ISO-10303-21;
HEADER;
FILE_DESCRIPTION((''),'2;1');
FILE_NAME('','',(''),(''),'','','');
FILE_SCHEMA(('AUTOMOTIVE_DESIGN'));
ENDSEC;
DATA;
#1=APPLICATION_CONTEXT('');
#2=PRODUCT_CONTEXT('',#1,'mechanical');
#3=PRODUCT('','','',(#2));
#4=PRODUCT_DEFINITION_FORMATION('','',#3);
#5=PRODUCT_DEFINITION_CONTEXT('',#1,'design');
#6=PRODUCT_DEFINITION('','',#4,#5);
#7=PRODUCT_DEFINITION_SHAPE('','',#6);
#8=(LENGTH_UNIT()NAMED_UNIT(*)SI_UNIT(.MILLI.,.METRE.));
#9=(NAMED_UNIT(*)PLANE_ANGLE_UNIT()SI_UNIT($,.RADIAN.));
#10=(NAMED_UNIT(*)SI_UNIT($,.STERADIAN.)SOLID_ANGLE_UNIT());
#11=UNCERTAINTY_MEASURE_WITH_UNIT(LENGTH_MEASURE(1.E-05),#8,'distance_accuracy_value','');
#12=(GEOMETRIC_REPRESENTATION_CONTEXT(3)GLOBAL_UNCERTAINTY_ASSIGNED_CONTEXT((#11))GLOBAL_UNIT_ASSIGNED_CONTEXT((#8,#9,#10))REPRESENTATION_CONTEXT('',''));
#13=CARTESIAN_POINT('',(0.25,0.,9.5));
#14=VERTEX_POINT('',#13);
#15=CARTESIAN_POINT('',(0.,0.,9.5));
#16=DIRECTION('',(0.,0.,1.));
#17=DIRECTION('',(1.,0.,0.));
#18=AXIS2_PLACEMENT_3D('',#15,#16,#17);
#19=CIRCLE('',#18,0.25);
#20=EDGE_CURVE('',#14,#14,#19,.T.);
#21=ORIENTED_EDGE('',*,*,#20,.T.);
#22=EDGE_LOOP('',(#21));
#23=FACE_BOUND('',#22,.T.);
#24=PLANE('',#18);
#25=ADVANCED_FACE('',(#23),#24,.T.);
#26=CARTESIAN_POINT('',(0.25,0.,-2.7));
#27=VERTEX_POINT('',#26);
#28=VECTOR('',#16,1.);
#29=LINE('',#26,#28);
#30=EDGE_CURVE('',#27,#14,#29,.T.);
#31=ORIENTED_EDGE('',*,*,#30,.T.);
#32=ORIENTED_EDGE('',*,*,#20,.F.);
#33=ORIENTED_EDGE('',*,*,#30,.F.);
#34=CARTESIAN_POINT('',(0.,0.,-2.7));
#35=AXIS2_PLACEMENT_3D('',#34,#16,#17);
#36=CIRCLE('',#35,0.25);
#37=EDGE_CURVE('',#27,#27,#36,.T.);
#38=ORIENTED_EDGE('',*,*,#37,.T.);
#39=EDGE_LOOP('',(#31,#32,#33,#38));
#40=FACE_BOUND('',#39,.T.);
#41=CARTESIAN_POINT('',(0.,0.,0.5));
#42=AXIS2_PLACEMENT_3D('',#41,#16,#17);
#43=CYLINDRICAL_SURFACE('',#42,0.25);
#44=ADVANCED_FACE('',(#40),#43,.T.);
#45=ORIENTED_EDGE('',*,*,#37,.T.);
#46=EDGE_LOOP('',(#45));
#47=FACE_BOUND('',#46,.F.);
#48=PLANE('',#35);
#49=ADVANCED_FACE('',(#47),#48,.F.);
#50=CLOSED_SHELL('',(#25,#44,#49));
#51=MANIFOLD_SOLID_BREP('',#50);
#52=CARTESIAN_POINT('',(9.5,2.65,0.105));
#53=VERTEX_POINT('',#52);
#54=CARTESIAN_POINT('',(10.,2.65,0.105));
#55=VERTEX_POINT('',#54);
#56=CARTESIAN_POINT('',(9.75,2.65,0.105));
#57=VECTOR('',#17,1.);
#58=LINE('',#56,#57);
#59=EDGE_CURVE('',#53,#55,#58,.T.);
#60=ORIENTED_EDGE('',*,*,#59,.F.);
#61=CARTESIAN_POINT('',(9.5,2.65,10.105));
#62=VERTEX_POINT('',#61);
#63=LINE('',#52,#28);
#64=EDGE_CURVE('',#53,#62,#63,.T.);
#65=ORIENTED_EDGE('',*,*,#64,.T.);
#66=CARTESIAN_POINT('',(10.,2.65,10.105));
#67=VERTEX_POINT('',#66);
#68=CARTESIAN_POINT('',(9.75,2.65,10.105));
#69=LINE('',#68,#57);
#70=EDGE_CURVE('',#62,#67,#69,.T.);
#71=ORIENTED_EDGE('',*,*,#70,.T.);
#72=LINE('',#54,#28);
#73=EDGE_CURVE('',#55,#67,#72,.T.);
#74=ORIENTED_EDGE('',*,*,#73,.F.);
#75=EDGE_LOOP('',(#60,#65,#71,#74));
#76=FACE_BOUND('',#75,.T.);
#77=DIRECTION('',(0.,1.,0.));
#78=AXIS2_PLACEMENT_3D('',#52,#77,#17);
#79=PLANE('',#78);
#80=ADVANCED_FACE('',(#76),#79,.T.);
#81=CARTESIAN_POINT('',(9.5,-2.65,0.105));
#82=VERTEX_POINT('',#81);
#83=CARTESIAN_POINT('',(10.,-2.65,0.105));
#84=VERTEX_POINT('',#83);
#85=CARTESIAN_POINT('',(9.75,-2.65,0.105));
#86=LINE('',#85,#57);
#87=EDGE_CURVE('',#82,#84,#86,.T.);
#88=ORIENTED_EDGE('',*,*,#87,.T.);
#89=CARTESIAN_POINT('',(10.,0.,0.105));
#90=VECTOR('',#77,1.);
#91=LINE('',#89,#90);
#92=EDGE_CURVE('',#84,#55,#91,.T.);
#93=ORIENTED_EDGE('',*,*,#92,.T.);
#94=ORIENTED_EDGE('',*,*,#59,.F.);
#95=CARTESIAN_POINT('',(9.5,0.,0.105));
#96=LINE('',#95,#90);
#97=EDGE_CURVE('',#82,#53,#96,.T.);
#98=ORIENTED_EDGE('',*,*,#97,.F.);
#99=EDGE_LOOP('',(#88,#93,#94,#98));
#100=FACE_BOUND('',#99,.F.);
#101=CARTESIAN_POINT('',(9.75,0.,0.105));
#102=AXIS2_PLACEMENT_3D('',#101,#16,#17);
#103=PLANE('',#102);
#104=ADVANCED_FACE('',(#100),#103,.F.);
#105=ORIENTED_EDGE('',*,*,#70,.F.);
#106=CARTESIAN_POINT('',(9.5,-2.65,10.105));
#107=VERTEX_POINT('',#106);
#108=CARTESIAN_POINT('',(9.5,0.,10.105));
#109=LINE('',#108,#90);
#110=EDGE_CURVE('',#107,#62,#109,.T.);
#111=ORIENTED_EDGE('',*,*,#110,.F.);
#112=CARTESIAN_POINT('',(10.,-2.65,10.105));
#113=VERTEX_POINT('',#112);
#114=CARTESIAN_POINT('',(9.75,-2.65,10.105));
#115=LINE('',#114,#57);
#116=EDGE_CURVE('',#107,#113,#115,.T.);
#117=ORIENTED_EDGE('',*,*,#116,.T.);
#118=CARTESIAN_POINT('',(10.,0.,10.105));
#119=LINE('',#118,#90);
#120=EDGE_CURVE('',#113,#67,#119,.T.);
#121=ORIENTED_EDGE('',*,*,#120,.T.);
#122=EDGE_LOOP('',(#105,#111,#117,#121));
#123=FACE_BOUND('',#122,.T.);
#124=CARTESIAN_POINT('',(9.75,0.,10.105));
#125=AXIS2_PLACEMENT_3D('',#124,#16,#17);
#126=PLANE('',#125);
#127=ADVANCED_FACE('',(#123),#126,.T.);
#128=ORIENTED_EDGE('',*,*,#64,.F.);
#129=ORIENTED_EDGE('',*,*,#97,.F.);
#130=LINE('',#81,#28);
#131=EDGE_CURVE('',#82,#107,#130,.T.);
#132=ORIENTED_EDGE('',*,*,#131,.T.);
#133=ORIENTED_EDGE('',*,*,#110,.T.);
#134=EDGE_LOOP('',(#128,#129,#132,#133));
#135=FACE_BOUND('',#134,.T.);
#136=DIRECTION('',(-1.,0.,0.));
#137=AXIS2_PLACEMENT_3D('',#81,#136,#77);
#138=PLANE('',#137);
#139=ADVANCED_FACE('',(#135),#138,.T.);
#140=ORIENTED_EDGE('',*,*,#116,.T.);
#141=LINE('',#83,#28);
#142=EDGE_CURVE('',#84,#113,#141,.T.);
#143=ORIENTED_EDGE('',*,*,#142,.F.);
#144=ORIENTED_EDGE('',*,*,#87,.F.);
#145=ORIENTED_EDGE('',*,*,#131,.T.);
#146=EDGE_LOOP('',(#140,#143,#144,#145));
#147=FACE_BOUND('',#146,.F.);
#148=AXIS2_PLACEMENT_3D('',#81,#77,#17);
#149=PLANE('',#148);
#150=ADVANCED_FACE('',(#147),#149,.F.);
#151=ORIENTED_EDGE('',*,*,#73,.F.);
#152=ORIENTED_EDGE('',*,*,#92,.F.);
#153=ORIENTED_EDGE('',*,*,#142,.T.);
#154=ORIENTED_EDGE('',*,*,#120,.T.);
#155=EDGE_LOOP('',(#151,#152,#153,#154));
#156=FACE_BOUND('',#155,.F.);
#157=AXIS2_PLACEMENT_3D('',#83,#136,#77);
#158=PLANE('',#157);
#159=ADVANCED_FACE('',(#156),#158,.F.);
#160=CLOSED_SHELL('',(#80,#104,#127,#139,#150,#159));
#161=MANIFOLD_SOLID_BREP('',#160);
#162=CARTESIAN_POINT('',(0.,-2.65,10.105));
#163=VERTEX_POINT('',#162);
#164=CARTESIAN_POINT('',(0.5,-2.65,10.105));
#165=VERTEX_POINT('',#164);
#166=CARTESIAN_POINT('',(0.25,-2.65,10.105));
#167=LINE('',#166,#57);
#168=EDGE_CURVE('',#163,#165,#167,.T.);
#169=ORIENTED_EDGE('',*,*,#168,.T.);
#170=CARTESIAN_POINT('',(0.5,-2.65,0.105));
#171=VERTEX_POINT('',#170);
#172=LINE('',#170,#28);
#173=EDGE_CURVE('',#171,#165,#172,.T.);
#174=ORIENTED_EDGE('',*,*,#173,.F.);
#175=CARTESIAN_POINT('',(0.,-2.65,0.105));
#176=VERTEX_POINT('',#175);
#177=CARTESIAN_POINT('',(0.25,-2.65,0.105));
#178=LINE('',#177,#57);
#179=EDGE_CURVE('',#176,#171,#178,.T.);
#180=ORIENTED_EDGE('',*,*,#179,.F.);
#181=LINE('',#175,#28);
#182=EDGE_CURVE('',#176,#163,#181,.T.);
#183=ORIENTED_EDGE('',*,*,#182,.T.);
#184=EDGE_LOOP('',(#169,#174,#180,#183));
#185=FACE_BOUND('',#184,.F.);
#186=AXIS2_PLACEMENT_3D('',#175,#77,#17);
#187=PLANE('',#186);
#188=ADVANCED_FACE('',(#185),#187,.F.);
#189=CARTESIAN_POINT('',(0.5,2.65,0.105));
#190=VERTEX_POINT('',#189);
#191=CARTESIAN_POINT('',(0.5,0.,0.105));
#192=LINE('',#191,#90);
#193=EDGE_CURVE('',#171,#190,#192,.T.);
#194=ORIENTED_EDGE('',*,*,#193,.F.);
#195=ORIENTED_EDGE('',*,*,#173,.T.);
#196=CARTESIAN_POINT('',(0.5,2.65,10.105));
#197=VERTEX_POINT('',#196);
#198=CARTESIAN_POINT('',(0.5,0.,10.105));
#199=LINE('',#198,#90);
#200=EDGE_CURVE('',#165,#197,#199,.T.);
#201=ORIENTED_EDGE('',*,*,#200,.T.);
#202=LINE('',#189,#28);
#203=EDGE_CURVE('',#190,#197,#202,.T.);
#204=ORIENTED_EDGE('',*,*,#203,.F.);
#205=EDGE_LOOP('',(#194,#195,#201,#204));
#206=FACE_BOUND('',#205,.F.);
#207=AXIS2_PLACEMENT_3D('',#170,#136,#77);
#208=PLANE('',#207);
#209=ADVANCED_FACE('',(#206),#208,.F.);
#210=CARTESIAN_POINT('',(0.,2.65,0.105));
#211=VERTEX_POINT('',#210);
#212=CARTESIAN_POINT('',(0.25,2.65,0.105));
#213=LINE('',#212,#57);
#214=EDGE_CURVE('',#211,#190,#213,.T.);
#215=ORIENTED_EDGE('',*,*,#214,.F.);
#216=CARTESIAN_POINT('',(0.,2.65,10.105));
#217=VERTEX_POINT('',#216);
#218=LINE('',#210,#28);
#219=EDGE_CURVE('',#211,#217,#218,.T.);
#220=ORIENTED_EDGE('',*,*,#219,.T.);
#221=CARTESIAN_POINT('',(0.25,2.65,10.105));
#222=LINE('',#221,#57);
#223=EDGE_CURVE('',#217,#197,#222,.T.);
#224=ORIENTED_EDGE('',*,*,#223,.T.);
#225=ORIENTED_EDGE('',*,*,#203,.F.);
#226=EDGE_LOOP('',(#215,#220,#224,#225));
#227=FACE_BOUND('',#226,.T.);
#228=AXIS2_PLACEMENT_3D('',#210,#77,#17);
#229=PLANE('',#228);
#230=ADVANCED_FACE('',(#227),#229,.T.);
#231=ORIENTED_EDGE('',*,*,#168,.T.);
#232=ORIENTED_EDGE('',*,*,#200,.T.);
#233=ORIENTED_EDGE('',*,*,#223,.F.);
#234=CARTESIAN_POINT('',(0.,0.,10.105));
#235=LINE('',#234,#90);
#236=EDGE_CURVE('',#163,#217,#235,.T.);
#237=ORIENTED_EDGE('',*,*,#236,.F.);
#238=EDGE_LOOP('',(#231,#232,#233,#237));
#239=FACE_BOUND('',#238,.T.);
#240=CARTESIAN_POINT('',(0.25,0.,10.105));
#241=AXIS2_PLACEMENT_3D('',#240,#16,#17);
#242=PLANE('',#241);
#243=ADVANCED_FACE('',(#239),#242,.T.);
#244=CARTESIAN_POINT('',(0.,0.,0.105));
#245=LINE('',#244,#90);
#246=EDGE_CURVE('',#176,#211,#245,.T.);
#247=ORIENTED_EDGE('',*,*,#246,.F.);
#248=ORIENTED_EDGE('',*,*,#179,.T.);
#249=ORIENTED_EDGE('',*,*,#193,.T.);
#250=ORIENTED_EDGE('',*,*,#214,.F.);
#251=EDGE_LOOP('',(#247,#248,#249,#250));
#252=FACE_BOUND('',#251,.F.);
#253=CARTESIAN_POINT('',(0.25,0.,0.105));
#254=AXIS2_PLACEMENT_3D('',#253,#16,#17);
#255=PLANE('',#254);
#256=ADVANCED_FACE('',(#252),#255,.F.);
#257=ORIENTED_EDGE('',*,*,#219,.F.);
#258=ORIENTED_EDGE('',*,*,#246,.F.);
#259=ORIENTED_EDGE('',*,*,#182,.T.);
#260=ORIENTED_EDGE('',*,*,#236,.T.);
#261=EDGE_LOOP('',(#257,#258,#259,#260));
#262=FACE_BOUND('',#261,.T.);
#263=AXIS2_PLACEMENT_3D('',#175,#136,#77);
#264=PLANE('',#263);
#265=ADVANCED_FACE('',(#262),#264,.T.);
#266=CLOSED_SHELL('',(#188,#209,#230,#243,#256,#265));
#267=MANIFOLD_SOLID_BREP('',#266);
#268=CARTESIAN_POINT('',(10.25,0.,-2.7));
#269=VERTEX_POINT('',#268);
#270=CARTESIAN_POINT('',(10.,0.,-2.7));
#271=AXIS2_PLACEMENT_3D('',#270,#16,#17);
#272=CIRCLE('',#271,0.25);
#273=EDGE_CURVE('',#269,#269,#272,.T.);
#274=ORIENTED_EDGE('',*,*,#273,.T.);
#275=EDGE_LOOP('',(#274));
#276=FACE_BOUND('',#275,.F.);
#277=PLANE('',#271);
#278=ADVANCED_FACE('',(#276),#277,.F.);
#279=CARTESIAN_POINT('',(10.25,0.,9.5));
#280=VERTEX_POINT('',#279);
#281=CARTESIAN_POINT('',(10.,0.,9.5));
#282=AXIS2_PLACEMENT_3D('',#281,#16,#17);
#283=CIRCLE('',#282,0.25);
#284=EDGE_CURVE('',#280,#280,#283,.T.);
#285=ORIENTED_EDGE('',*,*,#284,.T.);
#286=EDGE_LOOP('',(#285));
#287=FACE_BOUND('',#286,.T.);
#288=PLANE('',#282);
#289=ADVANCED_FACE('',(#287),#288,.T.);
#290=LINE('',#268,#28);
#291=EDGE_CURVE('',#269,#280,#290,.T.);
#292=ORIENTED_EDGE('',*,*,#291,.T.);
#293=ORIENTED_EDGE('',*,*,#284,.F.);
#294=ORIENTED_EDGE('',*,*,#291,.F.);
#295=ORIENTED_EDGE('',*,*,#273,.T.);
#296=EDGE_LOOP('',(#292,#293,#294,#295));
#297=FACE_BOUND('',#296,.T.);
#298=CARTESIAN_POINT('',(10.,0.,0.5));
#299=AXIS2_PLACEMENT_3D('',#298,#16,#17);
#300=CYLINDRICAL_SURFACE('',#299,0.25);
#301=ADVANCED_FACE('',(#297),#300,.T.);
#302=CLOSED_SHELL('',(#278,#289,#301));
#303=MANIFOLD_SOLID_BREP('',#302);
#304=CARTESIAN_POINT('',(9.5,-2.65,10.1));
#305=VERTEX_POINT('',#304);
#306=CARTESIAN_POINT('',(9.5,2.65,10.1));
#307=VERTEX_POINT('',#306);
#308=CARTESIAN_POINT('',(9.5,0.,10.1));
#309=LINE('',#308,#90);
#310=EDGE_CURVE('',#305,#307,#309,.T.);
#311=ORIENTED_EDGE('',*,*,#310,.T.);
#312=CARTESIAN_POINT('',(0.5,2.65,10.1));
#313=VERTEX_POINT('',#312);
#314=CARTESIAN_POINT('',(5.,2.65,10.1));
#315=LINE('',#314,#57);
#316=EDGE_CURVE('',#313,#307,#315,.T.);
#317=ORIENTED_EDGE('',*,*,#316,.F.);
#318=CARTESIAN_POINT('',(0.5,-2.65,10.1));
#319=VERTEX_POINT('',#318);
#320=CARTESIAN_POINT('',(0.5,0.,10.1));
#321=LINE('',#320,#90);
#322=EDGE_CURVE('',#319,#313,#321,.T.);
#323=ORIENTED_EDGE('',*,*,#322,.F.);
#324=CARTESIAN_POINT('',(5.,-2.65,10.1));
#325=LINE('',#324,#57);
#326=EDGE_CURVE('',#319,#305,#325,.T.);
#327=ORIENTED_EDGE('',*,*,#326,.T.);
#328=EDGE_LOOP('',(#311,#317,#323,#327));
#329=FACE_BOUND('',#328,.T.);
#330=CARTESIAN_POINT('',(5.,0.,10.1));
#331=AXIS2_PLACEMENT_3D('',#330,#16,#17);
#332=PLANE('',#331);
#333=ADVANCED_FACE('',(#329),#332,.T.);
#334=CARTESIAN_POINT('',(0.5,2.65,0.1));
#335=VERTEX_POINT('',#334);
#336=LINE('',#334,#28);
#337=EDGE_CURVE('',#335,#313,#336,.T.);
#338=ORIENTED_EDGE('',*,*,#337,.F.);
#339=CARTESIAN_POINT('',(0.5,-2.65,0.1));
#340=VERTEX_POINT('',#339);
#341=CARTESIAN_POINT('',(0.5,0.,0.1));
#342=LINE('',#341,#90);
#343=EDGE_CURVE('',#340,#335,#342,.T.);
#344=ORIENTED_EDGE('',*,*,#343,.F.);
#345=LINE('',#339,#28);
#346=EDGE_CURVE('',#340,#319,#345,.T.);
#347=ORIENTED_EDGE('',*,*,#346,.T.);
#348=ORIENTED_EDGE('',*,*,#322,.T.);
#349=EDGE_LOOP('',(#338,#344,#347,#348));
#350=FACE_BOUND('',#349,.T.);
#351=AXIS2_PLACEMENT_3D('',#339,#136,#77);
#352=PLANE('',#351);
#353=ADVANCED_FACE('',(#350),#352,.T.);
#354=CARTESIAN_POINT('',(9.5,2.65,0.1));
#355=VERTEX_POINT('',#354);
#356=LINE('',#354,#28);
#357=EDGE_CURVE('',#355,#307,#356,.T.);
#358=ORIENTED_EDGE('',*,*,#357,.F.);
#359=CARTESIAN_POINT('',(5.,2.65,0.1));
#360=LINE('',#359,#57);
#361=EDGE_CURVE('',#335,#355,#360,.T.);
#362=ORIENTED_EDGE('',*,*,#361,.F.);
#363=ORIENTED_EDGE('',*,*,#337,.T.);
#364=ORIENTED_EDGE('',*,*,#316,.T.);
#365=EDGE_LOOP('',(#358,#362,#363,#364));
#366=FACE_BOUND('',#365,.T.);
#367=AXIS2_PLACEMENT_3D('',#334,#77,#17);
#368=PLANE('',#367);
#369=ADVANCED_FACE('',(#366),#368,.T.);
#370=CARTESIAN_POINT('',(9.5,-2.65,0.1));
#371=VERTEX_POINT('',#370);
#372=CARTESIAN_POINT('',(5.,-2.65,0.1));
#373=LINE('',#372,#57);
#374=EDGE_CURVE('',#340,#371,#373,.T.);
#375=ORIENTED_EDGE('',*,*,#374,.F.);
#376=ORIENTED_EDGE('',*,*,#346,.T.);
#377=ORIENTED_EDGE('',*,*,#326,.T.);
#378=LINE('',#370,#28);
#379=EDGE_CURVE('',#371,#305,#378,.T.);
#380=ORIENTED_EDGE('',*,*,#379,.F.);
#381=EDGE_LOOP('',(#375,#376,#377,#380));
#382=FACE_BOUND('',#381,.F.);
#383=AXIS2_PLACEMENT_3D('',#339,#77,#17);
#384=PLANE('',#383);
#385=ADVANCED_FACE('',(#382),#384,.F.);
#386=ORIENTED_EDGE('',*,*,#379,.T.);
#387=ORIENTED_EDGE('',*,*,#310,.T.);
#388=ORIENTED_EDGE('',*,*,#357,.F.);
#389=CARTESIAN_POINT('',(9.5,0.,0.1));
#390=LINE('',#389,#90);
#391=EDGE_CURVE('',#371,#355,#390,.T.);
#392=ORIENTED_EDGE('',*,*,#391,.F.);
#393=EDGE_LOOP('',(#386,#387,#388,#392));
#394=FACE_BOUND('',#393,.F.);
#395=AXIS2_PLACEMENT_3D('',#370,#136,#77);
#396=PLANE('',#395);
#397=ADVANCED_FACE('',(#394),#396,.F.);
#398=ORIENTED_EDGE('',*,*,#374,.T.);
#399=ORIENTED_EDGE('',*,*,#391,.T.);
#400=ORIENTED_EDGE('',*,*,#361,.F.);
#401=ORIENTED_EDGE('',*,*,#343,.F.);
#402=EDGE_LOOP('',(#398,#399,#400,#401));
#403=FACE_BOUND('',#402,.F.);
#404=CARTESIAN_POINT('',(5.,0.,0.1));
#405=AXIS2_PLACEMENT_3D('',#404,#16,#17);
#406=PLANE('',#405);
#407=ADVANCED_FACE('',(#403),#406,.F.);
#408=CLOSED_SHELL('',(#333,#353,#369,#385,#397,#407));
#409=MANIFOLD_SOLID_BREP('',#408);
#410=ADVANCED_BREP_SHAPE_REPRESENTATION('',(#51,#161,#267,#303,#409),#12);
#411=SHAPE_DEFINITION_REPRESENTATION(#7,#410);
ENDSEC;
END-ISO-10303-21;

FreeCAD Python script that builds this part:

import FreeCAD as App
import Part
import Sketcher

V = App.Vector

doc = App.newDocument("Part")
body = doc.addObject("PartDesign::Body", "Body")

# Sketch on XY plane
sketch1 = doc.addObject("Sketcher::SketchObject", "Sketch")
body.addObject(sketch1)
sketch1.AttachmentSupport = (doc.XY_Plane, [""])
sketch1.MapMode = "FlatFace"
sketch1.AttachmentOffset = App.Placement(V(0, 0, 0.1), App.Rotation())
sketch1.addGeometry([
    Part.LineSegment(V(0, 3, 0), V(0, -3, 0)),
    Part.LineSegment(V(0, -3, 0), V(10, -3, 0)),
    Part.LineSegment(V(10, -3, 0), V(10, 3, 0)),
    Part.LineSegment(V(10, 3, 0), V(0, 3, 0)),
], False)
sketch1.addConstraint([
    Sketcher.Constraint("Coincident", 0, 2, 1, 1),
    Sketcher.Constraint("Coincident", 1, 2, 2, 1),
    Sketcher.Constraint("Coincident", 2, 2, 3, 1),
    Sketcher.Constraint("Coincident", 3, 2, 0, 1),
    Sketcher.Constraint("Vertical", 0),
    Sketcher.Constraint("Horizontal", 1),
    Sketcher.Constraint("Vertical", 2),
    Sketcher.Constraint("Horizontal", 3),
    Sketcher.Constraint("DistanceX", 1, 1, 1, 2, 9.0),
    Sketcher.Constraint("DistanceY", 0, 2, 0, 1, 5.3),
    Sketcher.Constraint("DistanceX", -1, 1, 0, 2, 0.5),
    Sketcher.Constraint("DistanceY", 0, 2, -1, 1, 2.65),
])
pad1 = doc.addObject("PartDesign::Pad", "Pad")
body.addObject(pad1)
pad1.Profile = sketch1
pad1.Length = 10
body2 = doc.addObject("PartDesign::Body", "Body001")
body2.AllowCompound = True

# Sketch on XY plane
sketch2 = doc.addObject("Sketcher::SketchObject", "Sketch001")
body2.addObject(sketch2)
sketch2.AttachmentSupport = (doc.getObject("XY_Plane001"), [""])
sketch2.MapMode = "FlatFace"
sketch2.AttachmentOffset = App.Placement(V(0, 0, 0.5), App.Rotation())
sketch2.addGeometry([
    Part.Circle(V(0, 0, 0), V(0, 0, 1), 0.25),
    Part.Circle(V(10, 0, 0), V(0, 0, 1), 0.25),
], False)
sketch2.addConstraint([
    Sketcher.Constraint("Coincident", 0, 3, -1, 1),
    Sketcher.Constraint("Equal", 0, 1),
    Sketcher.Constraint("PointOnObject", 1, 3, -1),
    Sketcher.Constraint("Diameter", 0, 0.5),
    Sketcher.Constraint("DistanceX", -1, 1, 1, 3, 10.0),
])
pad2 = doc.addObject("PartDesign::Pad", "Pad001")
body2.addObject(pad2)
pad2.Profile = sketch2
pad2.Type = "TwoLengths"
pad2.Length = 9
pad2.Length2 = 3.2
body3 = doc.addObject("PartDesign::Body", "Body002")
body3.AllowCompound = True

# Sketch on XY plane
sketch3 = doc.addObject("Sketcher::SketchObject", "Sketch002")
body3.addObject(sketch3)
sketch3.AttachmentSupport = (doc.getObject("XY_Plane002"), [""])
sketch3.MapMode = "FlatFace"
sketch3.AttachmentOffset = App.Placement(V(0, 0, 0.105), App.Rotation())
sketch3.addGeometry([
    Part.LineSegment(V(0, 2.6, 0), V(0, -2.6, 0)),  # 0
    Part.LineSegment(V(0, -2.6, 0), V(0.5, -2.6, 0)),  # 1
    Part.LineSegment(V(0.5, -2.6, 0), V(0.5, 2.6, 0)),  # 2
    Part.LineSegment(V(0.5, 2.6, 0), V(0, 2.6, 0)),  # 3
    Part.LineSegment(V(9.5, 2.6, 0), V(9.5, -2.6, 0)),  # 4
    Part.LineSegment(V(9.5, -2.6, 0), V(10, -2.6, 0)),  # 5
    Part.LineSegment(V(10, -2.6, 0), V(10, 2.6, 0)),  # 6
    Part.LineSegment(V(10, 2.6, 0), V(9.5, 2.6, 0)),  # 7
], False)
sketch3.addConstraint([
    Sketcher.Constraint("Coincident", 0, 2, 1, 1),
    Sketcher.Constraint("Coincident", 1, 2, 2, 1),
    Sketcher.Constraint("Coincident", 2, 2, 3, 1),
    Sketcher.Constraint("Coincident", 3, 2, 0, 1),
    Sketcher.Constraint("Coincident", 4, 2, 5, 1),
    Sketcher.Constraint("Coincident", 5, 2, 6, 1),
    Sketcher.Constraint("Coincident", 6, 2, 7, 1),
    Sketcher.Constraint("Coincident", 7, 2, 4, 1),
    Sketcher.Constraint("Vertical", 0),
    Sketcher.Constraint("Horizontal", 1),
    Sketcher.Constraint("Vertical", 2),
    Sketcher.Constraint("Horizontal", 3),
    Sketcher.Constraint("Vertical", 4),
    Sketcher.Constraint("Horizontal", 5),
    Sketcher.Constraint("Vertical", 6),
    Sketcher.Constraint("Horizontal", 7),
    Sketcher.Constraint("Symmetric", 0, 2, 3, 2, -1, 1),
    Sketcher.Constraint("Horizontal", 1, 2, 4, 2),
    Sketcher.Constraint("Horizontal", 3, 2, 6, 2),
    Sketcher.Constraint("Equal", 3, 5),
    Sketcher.Constraint("DistanceX", 1, 1, 1, 2, 0.5),
    Sketcher.Constraint("DistanceY", 0, 2, 0, 1, 5.3),
    Sketcher.Constraint("DistanceX", -1, 1, 5, 2, 10.0),
])
pad3 = doc.addObject("PartDesign::Pad", "Pad002")
body3.addObject(pad3)
pad3.Profile = sketch3
pad3.Length = 10

doc.recompute()
